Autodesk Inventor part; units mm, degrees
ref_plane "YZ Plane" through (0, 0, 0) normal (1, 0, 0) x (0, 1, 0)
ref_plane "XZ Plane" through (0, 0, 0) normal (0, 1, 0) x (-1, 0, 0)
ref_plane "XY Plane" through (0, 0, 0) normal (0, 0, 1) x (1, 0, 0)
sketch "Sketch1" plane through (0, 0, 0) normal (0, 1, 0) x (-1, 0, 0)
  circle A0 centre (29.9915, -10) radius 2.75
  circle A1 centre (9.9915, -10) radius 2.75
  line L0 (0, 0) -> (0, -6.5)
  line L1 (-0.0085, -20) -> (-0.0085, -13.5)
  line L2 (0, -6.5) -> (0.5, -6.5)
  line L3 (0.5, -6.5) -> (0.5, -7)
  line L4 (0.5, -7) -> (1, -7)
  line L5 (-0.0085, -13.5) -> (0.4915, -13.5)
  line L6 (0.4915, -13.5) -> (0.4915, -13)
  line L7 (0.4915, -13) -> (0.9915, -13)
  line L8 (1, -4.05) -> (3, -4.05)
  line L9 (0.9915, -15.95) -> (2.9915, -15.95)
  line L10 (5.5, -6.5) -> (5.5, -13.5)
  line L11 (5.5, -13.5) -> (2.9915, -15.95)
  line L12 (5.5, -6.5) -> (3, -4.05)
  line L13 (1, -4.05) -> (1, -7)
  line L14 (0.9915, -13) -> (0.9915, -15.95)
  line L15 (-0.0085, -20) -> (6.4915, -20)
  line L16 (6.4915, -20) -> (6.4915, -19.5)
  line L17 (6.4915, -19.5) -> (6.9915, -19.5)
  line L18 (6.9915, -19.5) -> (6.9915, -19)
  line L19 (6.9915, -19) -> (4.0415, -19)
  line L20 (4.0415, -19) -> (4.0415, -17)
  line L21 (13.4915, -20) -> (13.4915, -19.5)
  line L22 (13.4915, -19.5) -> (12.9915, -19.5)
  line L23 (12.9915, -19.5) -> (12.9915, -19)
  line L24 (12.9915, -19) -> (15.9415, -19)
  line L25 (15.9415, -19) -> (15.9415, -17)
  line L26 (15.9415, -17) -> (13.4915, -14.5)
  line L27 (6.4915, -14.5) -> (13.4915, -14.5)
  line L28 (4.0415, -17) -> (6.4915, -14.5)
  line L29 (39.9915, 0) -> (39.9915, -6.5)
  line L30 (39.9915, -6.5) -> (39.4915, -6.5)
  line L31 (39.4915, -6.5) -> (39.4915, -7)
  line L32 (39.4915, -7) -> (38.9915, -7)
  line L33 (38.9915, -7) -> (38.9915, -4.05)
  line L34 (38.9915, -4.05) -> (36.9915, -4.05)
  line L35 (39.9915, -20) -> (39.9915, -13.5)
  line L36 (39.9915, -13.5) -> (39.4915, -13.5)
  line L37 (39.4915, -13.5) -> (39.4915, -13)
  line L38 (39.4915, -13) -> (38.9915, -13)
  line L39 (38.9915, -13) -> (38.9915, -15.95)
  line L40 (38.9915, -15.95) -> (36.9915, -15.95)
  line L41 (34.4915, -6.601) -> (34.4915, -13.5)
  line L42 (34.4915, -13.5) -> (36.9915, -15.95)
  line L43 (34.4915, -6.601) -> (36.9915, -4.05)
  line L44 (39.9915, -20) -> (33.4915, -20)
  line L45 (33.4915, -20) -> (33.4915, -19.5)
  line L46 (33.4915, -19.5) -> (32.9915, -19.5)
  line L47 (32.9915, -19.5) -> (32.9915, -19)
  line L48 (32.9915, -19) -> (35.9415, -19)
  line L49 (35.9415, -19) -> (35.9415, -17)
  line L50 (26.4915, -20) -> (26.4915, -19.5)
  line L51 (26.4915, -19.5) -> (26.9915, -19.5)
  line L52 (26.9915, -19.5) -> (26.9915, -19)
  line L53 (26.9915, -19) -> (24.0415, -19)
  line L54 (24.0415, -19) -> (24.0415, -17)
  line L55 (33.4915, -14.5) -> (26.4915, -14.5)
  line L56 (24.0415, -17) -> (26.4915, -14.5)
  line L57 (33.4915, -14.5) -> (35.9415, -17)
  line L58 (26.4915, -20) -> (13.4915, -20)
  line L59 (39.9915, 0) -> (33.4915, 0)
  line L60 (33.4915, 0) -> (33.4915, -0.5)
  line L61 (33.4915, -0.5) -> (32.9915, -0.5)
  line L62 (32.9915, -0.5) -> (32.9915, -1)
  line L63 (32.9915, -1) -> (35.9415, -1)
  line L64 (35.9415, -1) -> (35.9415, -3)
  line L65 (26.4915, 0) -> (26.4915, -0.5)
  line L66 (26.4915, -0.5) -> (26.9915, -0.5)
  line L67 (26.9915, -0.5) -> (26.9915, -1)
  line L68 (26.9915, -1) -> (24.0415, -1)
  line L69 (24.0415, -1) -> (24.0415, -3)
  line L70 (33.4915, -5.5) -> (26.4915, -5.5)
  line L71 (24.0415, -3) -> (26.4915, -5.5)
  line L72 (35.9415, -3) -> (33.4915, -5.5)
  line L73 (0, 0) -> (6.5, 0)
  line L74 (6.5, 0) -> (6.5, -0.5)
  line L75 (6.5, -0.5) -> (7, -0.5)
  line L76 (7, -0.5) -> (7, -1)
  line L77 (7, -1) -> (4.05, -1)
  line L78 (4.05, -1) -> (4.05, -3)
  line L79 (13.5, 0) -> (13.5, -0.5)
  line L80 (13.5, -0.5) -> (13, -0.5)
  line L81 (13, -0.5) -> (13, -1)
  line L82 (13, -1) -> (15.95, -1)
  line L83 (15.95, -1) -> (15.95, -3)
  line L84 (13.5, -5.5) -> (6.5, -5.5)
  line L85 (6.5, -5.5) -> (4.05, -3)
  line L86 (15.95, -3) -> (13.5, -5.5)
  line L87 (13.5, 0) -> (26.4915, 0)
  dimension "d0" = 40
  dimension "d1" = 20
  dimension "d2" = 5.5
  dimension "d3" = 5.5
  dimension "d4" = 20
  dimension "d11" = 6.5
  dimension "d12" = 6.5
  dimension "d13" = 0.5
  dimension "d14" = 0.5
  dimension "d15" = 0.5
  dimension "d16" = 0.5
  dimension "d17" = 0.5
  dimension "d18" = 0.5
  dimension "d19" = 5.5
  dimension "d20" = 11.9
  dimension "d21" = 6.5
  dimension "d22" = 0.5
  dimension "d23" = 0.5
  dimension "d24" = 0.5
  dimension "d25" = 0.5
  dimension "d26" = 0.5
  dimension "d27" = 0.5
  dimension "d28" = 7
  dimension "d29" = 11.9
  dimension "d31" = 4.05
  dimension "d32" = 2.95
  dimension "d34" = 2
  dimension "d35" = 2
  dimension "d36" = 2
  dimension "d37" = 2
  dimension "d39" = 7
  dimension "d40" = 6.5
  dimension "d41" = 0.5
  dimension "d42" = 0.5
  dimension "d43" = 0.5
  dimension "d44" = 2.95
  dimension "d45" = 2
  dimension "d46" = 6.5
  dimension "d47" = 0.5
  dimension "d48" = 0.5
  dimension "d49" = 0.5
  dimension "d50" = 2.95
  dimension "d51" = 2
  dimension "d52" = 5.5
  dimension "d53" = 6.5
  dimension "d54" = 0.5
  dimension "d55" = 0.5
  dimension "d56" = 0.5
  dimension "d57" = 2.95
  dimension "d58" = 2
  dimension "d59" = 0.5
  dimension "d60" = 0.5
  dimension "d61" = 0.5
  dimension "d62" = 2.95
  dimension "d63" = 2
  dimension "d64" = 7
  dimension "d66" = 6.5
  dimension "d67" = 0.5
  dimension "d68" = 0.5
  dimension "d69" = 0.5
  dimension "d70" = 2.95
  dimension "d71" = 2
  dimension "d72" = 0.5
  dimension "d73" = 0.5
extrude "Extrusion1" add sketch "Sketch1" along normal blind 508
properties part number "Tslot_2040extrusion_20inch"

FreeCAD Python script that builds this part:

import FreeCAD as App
import Part
import Sketcher

V = App.Vector
Q = App.Units.Quantity


def add_polygon(sketch, points):
    """Adds a closed chain of lines whose ends are joined by coincident constraints."""
    first, n = sketch.GeometryCount, len(points)
    for a, b in zip(points, points[1:] + points[:1]):
        sketch.addGeometry(Part.LineSegment(App.Vector(*a, 0), App.Vector(*b, 0)), False)
    for i in range(n):
        sketch.addConstraint(Sketcher.Constraint("Coincident", first + i, 2, first + (i + 1) % n, 1))

doc = App.newDocument("Part")
params = doc.addObject("Spreadsheet::Sheet", "Params")
for row, (alias, value) in enumerate([
    ("sketch1_diameter", "5.5 mm"),
    ("sketch1_width", "2 mm"),
    ("sketch1_width2", "7 mm"),
    ("sketch1_width3", "6.5 mm"),
    ("sketch1_width4", "0.5 mm"),
    ("pad1_length", "508 mm"),
], start=1):
    params.set(f"A{row}", alias)
    params.set(f"B{row}", "=" + value)
    params.setAlias(f"B{row}", alias)

body = doc.addObject("PartDesign::Body", "Body")

sketch1 = body.newObject("Sketcher::SketchObject", "Sketch")
sketch1.AttachmentSupport = (doc.getObject("XZ_Plane"), [""])
sketch1.MapMode = "FlatFace"
add_polygon(sketch1, [(-6.5, 0), (0, 0), (0, -6.5), (-0.5, -6.5), (-0.5, -7), (-1, -7), (-1, -4), (-3, -4), (-5.5, -6.5), (-5.5, -13.5), (-3, -15.9), (-1, -15.9), (-1, -13), (-0.5, -13), (-0.5, -13.5), (0, -13.5), (0, -20), (-6.5, -20), (-6.5, -19.5), (-7, -19.5), (-7, -19), (-4, -19), (-4, -17), (-6.5, -14.5), (-13.5, -14.5), (-15.9, -17), (-15.9, -19), (-13, -19), (-13, -19.5), (-13.5, -19.5), (-13.5, -20), (-26.5, -20), (-26.5, -19.5), (-27, -19.5), (-27, -19), (-24, -19), (-24, -17), (-26.5, -14.5), (-33.5, -14.5), (-35.9, -17), (-35.9, -19), (-33, -19), (-33, -19.5), (-33.5, -19.5), (-33.5, -20), (-40, -20), (-40, -13.5), (-39.5, -13.5), (-39.5, -13), (-39, -13), (-39, -15.9), (-37, -15.9), (-34.5, -13.5), (-34.5, -6.6), (-37, -4), (-39, -4), (-39, -7), (-39.5, -7), (-39.5, -6.5), (-40, -6.5), (-40, 0), (-33.5, 0), (-33.5, -0.5), (-33, -0.5), (-33, -1), (-35.9, -1), (-35.9, -3), (-33.5, -5.5), (-26.5, -5.5), (-24, -3), (-24, -1), (-27, -1), (-27, -0.5), (-26.5, -0.5), (-26.5, 0), (-13.5, 0), (-13.5, -0.5), (-13, -0.5), (-13, -1), (-15.9, -1), (-15.9, -3), (-13.5, -5.5), (-6.5, -5.5), (-4, -3), (-4, -1), (-7, -1), (-7, -0.5), (-6.5, -0.5)])
sketch1.addGeometry(Part.Circle(V(-10, -10, 0), V(0, 0, 1), 2.8), False)
sketch1.addGeometry(Part.Circle(V(-30, -10, 0), V(0, 0, 1), 2.8), False)
sketch1.addConstraint(Sketcher.Constraint("Horizontal", 0))
sketch1.addConstraint(Sketcher.Constraint("Vertical", 1))
sketch1.addConstraint(Sketcher.Constraint("Horizontal", 2))
sketch1.addConstraint(Sketcher.Constraint("Vertical", 3))
sketch1.addConstraint(Sketcher.Constraint("Horizontal", 4))
sketch1.addConstraint(Sketcher.Constraint("Vertical", 5))
sketch1.addConstraint(Sketcher.Constraint("Horizontal", 6))
sketch1.addConstraint(Sketcher.Constraint("Vertical", 8))
sketch1.addConstraint(Sketcher.Constraint("Horizontal", 10))
sketch1.addConstraint(Sketcher.Constraint("Vertical", 11))
sketch1.addConstraint(Sketcher.Constraint("Horizontal", 12))
sketch1.addConstraint(Sketcher.Constraint("Vertical", 13))
sketch1.addConstraint(Sketcher.Constraint("Horizontal", 14))
sketch1.addConstraint(Sketcher.Constraint("Vertical", 15))
sketch1.addConstraint(Sketcher.Constraint("Horizontal", 16))
sketch1.addConstraint(Sketcher.Constraint("Vertical", 17))
sketch1.addConstraint(Sketcher.Constraint("Horizontal", 18))
sketch1.addConstraint(Sketcher.Constraint("Vertical", 19))
sketch1.addConstraint(Sketcher.Constraint("Horizontal", 20))
sketch1.addConstraint(Sketcher.Constraint("Vertical", 21))
sketch1.addConstraint(Sketcher.Constraint("Horizontal", 23))
sketch1.addConstraint(Sketcher.Constraint("Vertical", 25))
sketch1.addConstraint(Sketcher.Constraint("Horizontal", 26))
sketch1.addConstraint(Sketcher.Constraint("Vertical", 27))
sketch1.addConstraint(Sketcher.Constraint("Horizontal", 28))
sketch1.addConstraint(Sketcher.Constraint("Vertical", 29))
sketch1.addConstraint(Sketcher.Constraint("Horizontal", 30))
sketch1.addConstraint(Sketcher.Constraint("Vertical", 31))
sketch1.addConstraint(Sketcher.Constraint("Horizontal", 32))
sketch1.addConstraint(Sketcher.Constraint("Vertical", 33))
sketch1.addConstraint(Sketcher.Constraint("Horizontal", 34))
sketch1.addConstraint(Sketcher.Constraint("Vertical", 35))
sketch1.addConstraint(Sketcher.Constraint("Horizontal", 37))
sketch1.addConstraint(Sketcher.Constraint("Vertical", 39))
sketch1.addConstraint(Sketcher.Constraint("Horizontal", 40))
sketch1.addConstraint(Sketcher.Constraint("Vertical", 41))
sketch1.addConstraint(Sketcher.Constraint("Horizontal", 42))
sketch1.addConstraint(Sketcher.Constraint("Vertical", 43))
sketch1.addConstraint(Sketcher.Constraint("Horizontal", 44))
sketch1.addConstraint(Sketcher.Constraint("Vertical", 45))
sketch1.addConstraint(Sketcher.Constraint("Horizontal", 46))
sketch1.addConstraint(Sketcher.Constraint("Vertical", 47))
sketch1.addConstraint(Sketcher.Constraint("Horizontal", 48))
sketch1.addConstraint(Sketcher.Constraint("Vertical", 49))
sketch1.addConstraint(Sketcher.Constraint("Horizontal", 50))
sketch1.addConstraint(Sketcher.Constraint("Vertical", 52))
sketch1.addConstraint(Sketcher.Constraint("Horizontal", 54))
sketch1.addConstraint(Sketcher.Constraint("Vertical", 55))
sketch1.addConstraint(Sketcher.Constraint("Horizontal", 56))
sketch1.addConstraint(Sketcher.Constraint("Vertical", 57))
sketch1.addConstraint(Sketcher.Constraint("Horizontal", 58))
sketch1.addConstraint(Sketcher.Constraint("Vertical", 59))
sketch1.addConstraint(Sketcher.Constraint("Horizontal", 60))
sketch1.addConstraint(Sketcher.Constraint("Vertical", 61))
sketch1.addConstraint(Sketcher.Constraint("Horizontal", 62))
sketch1.addConstraint(Sketcher.Constraint("Vertical", 63))
sketch1.addConstraint(Sketcher.Constraint("Horizontal", 64))
sketch1.addConstraint(Sketcher.Constraint("Vertical", 65))
sketch1.addConstraint(Sketcher.Constraint("Horizontal", 67))
sketch1.addConstraint(Sketcher.Constraint("Vertical", 69))
sketch1.addConstraint(Sketcher.Constraint("Horizontal", 70))
sketch1.addConstraint(Sketcher.Constraint("Vertical", 71))
sketch1.addConstraint(Sketcher.Constraint("Horizontal", 72))
sketch1.addConstraint(Sketcher.Constraint("Vertical", 73))
sketch1.addConstraint(Sketcher.Constraint("Horizontal", 74))
sketch1.addConstraint(Sketcher.Constraint("Vertical", 75))
sketch1.addConstraint(Sketcher.Constraint("Horizontal", 76))
sketch1.addConstraint(Sketcher.Constraint("Vertical", 77))
sketch1.addConstraint(Sketcher.Constraint("Horizontal", 78))
sketch1.addConstraint(Sketcher.Constraint("Vertical", 79))
sketch1.addConstraint(Sketcher.Constraint("Horizontal", 81))
sketch1.addConstraint(Sketcher.Constraint("Vertical", 83))
sketch1.addConstraint(Sketcher.Constraint("Horizontal", 84))
sketch1.addConstraint(Sketcher.Constraint("Vertical", 85))
sketch1.addConstraint(Sketcher.Constraint("Horizontal", 86))
sketch1.addConstraint(Sketcher.Constraint("Vertical", 87))
sketch1.addConstraint(Sketcher.Constraint("Coincident", 0, 2, -1, 1))
sketch1.addConstraint(Sketcher.Constraint("Equal", 88, 89))
sketch1.addConstraint(Sketcher.Constraint("PointOnObject", 59, 2, -1))
sketch1.addConstraint(Sketcher.Constraint("PointOnObject", 73, 2, -1))
sketch1.addConstraint(Sketcher.Constraint("Perpendicular", 7, 22))
sketch1.addConstraint(Sketcher.Constraint("Parallel", 22, 36))
sketch1.addConstraint(Sketcher.Constraint("Parallel", 24, 38))
sketch1.addConstraint(Sketcher.Constraint("Perpendicular", 36, 51))
sketch1.addConstraint(Sketcher.Constraint("Perpendicular", 51, 53))
sketch1.addConstraint(Sketcher.Constraint("Parallel", 53, 66))
sketch1.addConstraint(Sketcher.Constraint("Parallel", 38, 68))
sketch1.addConstraint(Sketcher.Constraint("Parallel", 66, 80))
sketch1.addConstraint(Sketcher.Constraint("Parallel", 68, 82))
sketch1.addConstraint(Sketcher.Constraint("Horizontal", 88, 3, 89, 3))
sketch1.addConstraint(Sketcher.Constraint("Horizontal", 2, 2, 7, 2))
sketch1.addConstraint(Sketcher.Constraint("Horizontal", 8, 2, 13, 2))
sketch1.addConstraint(Sketcher.Constraint("Horizontal", 21, 2, 24, 2))
sketch1.addConstraint(Sketcher.Constraint("Horizontal", 20, 2, 25, 2))
sketch1.addConstraint(Sketcher.Constraint("Horizontal", 18, 2, 27, 2))
sketch1.addConstraint(Sketcher.Constraint("Horizontal", 16, 2, 29, 2))
sketch1.addConstraint(Sketcher.Constraint("Horizontal", 28, 2, 31, 2))
sketch1.addConstraint(Sketcher.Constraint("Horizontal", 26, 2, 33, 2))
sketch1.addConstraint(Sketcher.Constraint("Horizontal", 24, 2, 35, 2))
sketch1.addConstraint(Sketcher.Constraint("Horizontal", 23, 2, 36, 2))
sketch1.addConstraint(Sketcher.Constraint("Horizontal", 35, 2, 38, 2))
sketch1.addConstraint(Sketcher.Constraint("Horizontal", 34, 2, 39, 2))
sketch1.addConstraint(Sketcher.Constraint("Horizontal", 32, 2, 41, 2))
sketch1.addConstraint(Sketcher.Constraint("Horizontal", 30, 2, 43, 2))
sketch1.addConstraint(Sketcher.Constraint("Horizontal", 14, 2, 45, 2))
sketch1.addConstraint(Sketcher.Constraint("Horizontal", 12, 2, 47, 2))
sketch1.addConstraint(Sketcher.Constraint("Horizontal", 10, 2, 49, 2))
sketch1.addConstraint(Sketcher.Constraint("Horizontal", 46, 2, 51, 2))
sketch1.addConstraint(Sketcher.Constraint("Horizontal", 6, 2, 53, 2))
sketch1.addConstraint(Sketcher.Constraint("Horizontal", 4, 2, 55, 2))
sketch1.addConstraint(Sketcher.Constraint("Horizontal", 7, 2, 57, 2))
sketch1.addConstraint(Sketcher.Constraint("Horizontal", 65, 2, 68, 2))
sketch1.addConstraint(Sketcher.Constraint("Horizontal", 64, 2, 69, 2))
sketch1.addConstraint(Sketcher.Constraint("Horizontal", 62, 2, 71, 2))
sketch1.addConstraint(Sketcher.Constraint("Horizontal", 72, 2, 75, 2))
sketch1.addConstraint(Sketcher.Constraint("Horizontal", 70, 2, 77, 2))
sketch1.addConstraint(Sketcher.Constraint("Horizontal", 68, 2, 79, 2))
sketch1.addConstraint(Sketcher.Constraint("Horizontal", 67, 2, 80, 2))
sketch1.addConstraint(Sketcher.Constraint("Horizontal", 79, 2, 82, 2))
sketch1.addConstraint(Sketcher.Constraint("Horizontal", 78, 2, 83, 2))
sketch1.addConstraint(Sketcher.Constraint("Horizontal", 76, 2, 85, 2))
sketch1.addConstraint(Sketcher.Constraint("Vertical", 17, 2, 22, 2))
sketch1.addConstraint(Sketcher.Constraint("Vertical", 23, 2, 28, 2))
sketch1.addConstraint(Sketcher.Constraint("Vertical", 31, 2, 36, 2))
sketch1.addConstraint(Sketcher.Constraint("Vertical", 37, 2, 42, 2))
sketch1.addConstraint(Sketcher.Constraint("Vertical", 50, 2, 53, 2))
sketch1.addConstraint(Sketcher.Constraint("Vertical", 49, 2, 54, 2))
sketch1.addConstraint(Sketcher.Constraint("Vertical", 47, 2, 56, 2))
sketch1.addConstraint(Sketcher.Constraint("Vertical", 45, 2, 58, 2))
sketch1.addConstraint(Sketcher.Constraint("Vertical", 43, 2, 60, 2))
sketch1.addConstraint(Sketcher.Constraint("Vertical", 41, 2, 62, 2))
sketch1.addConstraint(Sketcher.Constraint("Vertical", 39, 2, 64, 2))
sketch1.addConstraint(Sketcher.Constraint("Vertical", 61, 2, 66, 2))
sketch1.addConstraint(Sketcher.Constraint("Vertical", 36, 2, 67, 2))
sketch1.addConstraint(Sketcher.Constraint("Vertical", 35, 2, 68, 2))
sketch1.addConstraint(Sketcher.Constraint("Vertical", 33, 2, 70, 2))
sketch1.addConstraint(Sketcher.Constraint("Vertical", 67, 2, 72, 2))
sketch1.addConstraint(Sketcher.Constraint("Vertical", 75, 2, 80, 2))
sketch1.addConstraint(Sketcher.Constraint("Vertical", 81, 2, 86, 2))
sketch1.addConstraint(Sketcher.Constraint("Equal", 2, 4))
sketch1.addConstraint(Sketcher.Constraint("Equal", 6, 10))
sketch1.addConstraint(Sketcher.Constraint("Equal", 4, 12))
sketch1.addConstraint(Sketcher.Constraint("Equal", 12, 14))
sketch1.addConstraint(Sketcher.Constraint("Equal", 0, 16))
sketch1.addConstraint(Sketcher.Constraint("Equal", 14, 18))
sketch1.addConstraint(Sketcher.Constraint("Equal", 20, 26))
sketch1.addConstraint(Sketcher.Constraint("Equal", 28, 32))
sketch1.addConstraint(Sketcher.Constraint("Equal", 23, 37))
sketch1.addConstraint(Sketcher.Constraint("Equal", 34, 40))
sketch1.addConstraint(Sketcher.Constraint("Equal", 16, 44))
sketch1.addConstraint(Sketcher.Constraint("Equal", 42, 46))
sketch1.addConstraint(Sketcher.Constraint("Equal", 46, 48))
sketch1.addConstraint(Sketcher.Constraint("Equal", 10, 50))
sketch1.addConstraint(Sketcher.Constraint("Equal", 72, 76))
sketch1.addConstraint(Sketcher.Constraint("Equal", 67, 81))
sketch1.addConstraint(Sketcher.Constraint("Equal", 78, 84))
sketch1.addConstraint(Sketcher.Constraint("Equal", 60, 1))
sketch1.addConstraint(Sketcher.Constraint("Equal", 86, 3))
sketch1.addConstraint(Sketcher.Constraint("Equal", 84, 5))
sketch1.addConstraint(Sketcher.Constraint("Equal", 81, 8))
sketch1.addConstraint(Sketcher.Constraint("Equal", 5, 11))
sketch1.addConstraint(Sketcher.Constraint("Equal", 3, 13))
sketch1.addConstraint(Sketcher.Constraint("Equal", 1, 15))
sketch1.addConstraint(Sketcher.Constraint("Equal", 13, 17))
sketch1.addConstraint(Sketcher.Constraint("Equal", 17, 19))
sketch1.addConstraint(Sketcher.Constraint("Equal", 54, 21))
sketch1.addConstraint(Sketcher.Constraint("Equal", 57, 61))
sketch1.addConstraint(Sketcher.Constraint("Equal", 61, 63))
sketch1.addConstraint(Sketcher.Constraint("Equal", 39, 65))
sketch1.addConstraint(Sketcher.Constraint("Diameter", 88, Q("5.5 mm")))
sketch1.addConstraint(Sketcher.Constraint("DistanceX", 6, 2, 6, 1, Q("2 mm")))
sketch1.addConstraint(Sketcher.Constraint("DistanceX", 23, 2, 23, 1, Q("7 mm")))
sketch1.addConstraint(Sketcher.Constraint("DistanceX", 0, 1, 0, 2, Q("6.5 mm")))
sketch1.addConstraint(Sketcher.Constraint("DistanceX", 2, 2, 2, 1, Q("0.5 mm")))
sketch1.addConstraint(Sketcher.Constraint("DistanceX", 20, 1, 20, 2, Q("2.95 mm")))
sketch1.addConstraint(Sketcher.Constraint("DistanceX", 7, 2, -1, 1, Q("5.5 mm")))
sketch1.addConstraint(Sketcher.Constraint("DistanceX", 30, 2, 30, 1, Q("13 mm")))
sketch1.addConstraint(Sketcher.Constraint("DistanceY", 88, 3, -1, 1, Q("10 mm")))
sketch1.addConstraint(Sketcher.Constraint("DistanceX", 74, 1, 74, 2, Q("12.9915 mm")))
sketch1.addConstraint(Sketcher.Constraint("DistanceX", 88, 3, -1, 1, Q("9.9915 mm")))
sketch1.addConstraint(Sketcher.Constraint("DistanceX", 89, 3, -1, 1, Q("29.9915 mm")))
sketch1.setExpression("Constraints[257]", "Params.sketch1_diameter")
sketch1.setExpression("Constraints[258]", "Params.sketch1_width")
sketch1.setExpression("Constraints[259]", "Params.sketch1_width2")
sketch1.setExpression("Constraints[260]", "Params.sketch1_width3")
sketch1.setExpression("Constraints[261]", "Params.sketch1_width4")
pad1 = body.newObject("PartDesign::Pad", "Pad")
pad1.Profile = sketch1
pad1.setExpression("Length", "Params.pad1_length")
pad1.Reversed = True

doc.recompute()
